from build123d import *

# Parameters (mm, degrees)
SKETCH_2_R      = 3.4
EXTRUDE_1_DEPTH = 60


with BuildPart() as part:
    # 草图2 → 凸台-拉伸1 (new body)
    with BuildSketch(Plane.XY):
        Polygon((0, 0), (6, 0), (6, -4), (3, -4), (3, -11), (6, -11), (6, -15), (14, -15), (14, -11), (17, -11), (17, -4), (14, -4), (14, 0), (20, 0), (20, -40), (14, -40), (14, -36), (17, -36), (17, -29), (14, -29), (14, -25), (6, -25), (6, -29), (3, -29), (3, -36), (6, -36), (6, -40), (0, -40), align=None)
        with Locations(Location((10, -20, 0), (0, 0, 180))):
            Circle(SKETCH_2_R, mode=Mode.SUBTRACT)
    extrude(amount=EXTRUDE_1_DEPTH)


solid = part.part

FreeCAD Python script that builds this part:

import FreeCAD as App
import Part
import Sketcher
from FreeCAD import Vector
Q = App.Units.Quantity


def add_polygon(sketch, points):
    """Adds a closed chain of lines whose ends are joined by coincident constraints."""
    first, n = sketch.GeometryCount, len(points)
    for a, b in zip(points, points[1:] + points[:1]):
        sketch.addGeometry(Part.LineSegment(App.Vector(*a, 0), App.Vector(*b, 0)), False)
    for i in range(n):
        sketch.addConstraint(Sketcher.Constraint("Coincident", first + i, 2, first + (i + 1) % n, 1))

doc = App.newDocument("Part")
body = doc.addObject("PartDesign::Body", "Body")

# Sketch on XY plane
sketch1 = body.newObject("Sketcher::SketchObject", "Sketch")
sketch1.AttachmentSupport = (doc.getObject("XY_Plane"), [""])
sketch1.MapMode = "FlatFace"
add_polygon(sketch1, [(6, 0), (0, 0), (0, -40), (6, -40), (6, -36), (3, -36), (3, -29), (6, -29), (6, -25), (14, -25), (14, -29), (17, -29), (17, -36), (14, -36), (14, -40), (20, -40), (20, 0), (14, 0), (14, -4), (17, -4), (17, -11), (14, -11), (14, -15), (6, -15), (6, -11), (3, -11), (3, -4), (6, -4)])  # lines 0-27
sketch1.addGeometry(Part.Circle(Vector(10, -20, 0), Vector(0, 0, 1), 3.4), False)  # 28
sketch1.addConstraint(Sketcher.Constraint("Horizontal", 0))
sketch1.addConstraint(Sketcher.Constraint("Vertical", 1))
sketch1.addConstraint(Sketcher.Constraint("Horizontal", 2))
sketch1.addConstraint(Sketcher.Constraint("Vertical", 3))
sketch1.addConstraint(Sketcher.Constraint("Horizontal", 4))
sketch1.addConstraint(Sketcher.Constraint("Vertical", 5))
sketch1.addConstraint(Sketcher.Constraint("Horizontal", 6))
sketch1.addConstraint(Sketcher.Constraint("Vertical", 7))
sketch1.addConstraint(Sketcher.Constraint("Horizontal", 8))
sketch1.addConstraint(Sketcher.Constraint("Vertical", 9))
sketch1.addConstraint(Sketcher.Constraint("Horizontal", 10))
sketch1.addConstraint(Sketcher.Constraint("Vertical", 11))
sketch1.addConstraint(Sketcher.Constraint("Horizontal", 12))
sketch1.addConstraint(Sketcher.Constraint("Vertical", 13))
sketch1.addConstraint(Sketcher.Constraint("Horizontal", 14))
sketch1.addConstraint(Sketcher.Constraint("Vertical", 15))
sketch1.addConstraint(Sketcher.Constraint("Horizontal", 16))
sketch1.addConstraint(Sketcher.Constraint("Vertical", 17))
sketch1.addConstraint(Sketcher.Constraint("Horizontal", 18))
sketch1.addConstraint(Sketcher.Constraint("Vertical", 19))
sketch1.addConstraint(Sketcher.Constraint("Horizontal", 20))
sketch1.addConstraint(Sketcher.Constraint("Vertical", 21))
sketch1.addConstraint(Sketcher.Constraint("Horizontal", 22))
sketch1.addConstraint(Sketcher.Constraint("Vertical", 23))
sketch1.addConstraint(Sketcher.Constraint("Horizontal", 24))
sketch1.addConstraint(Sketcher.Constraint("Vertical", 25))
sketch1.addConstraint(Sketcher.Constraint("Horizontal", 26))
sketch1.addConstraint(Sketcher.Constraint("Vertical", 27))
sketch1.addConstraint(Sketcher.Constraint("Coincident", 0, 2, -1, 1))
sketch1.addConstraint(Sketcher.Constraint("PointOnObject", 15, 2, -1))
sketch1.addConstraint(Sketcher.Constraint("Horizontal", 6, 2, 9, 2))
sketch1.addConstraint(Sketcher.Constraint("Horizontal", 4, 2, 11, 2))
sketch1.addConstraint(Sketcher.Constraint("Horizontal", 2, 2, 13, 2))
sketch1.addConstraint(Sketcher.Constraint("Horizontal", 20, 2, 23, 2))
sketch1.addConstraint(Sketcher.Constraint("Horizontal", 18, 2, 25, 2))
sketch1.addConstraint(Sketcher.Constraint("Vertical", 3, 2, 6, 2))
sketch1.addConstraint(Sketcher.Constraint("Vertical", 9, 2, 12, 2))
sketch1.addConstraint(Sketcher.Constraint("Vertical", 13, 2, 16, 2))
sketch1.addConstraint(Sketcher.Constraint("Vertical", 11, 2, 18, 2))
sketch1.addConstraint(Sketcher.Constraint("Vertical", 17, 2, 20, 2))
sketch1.addConstraint(Sketcher.Constraint("Vertical", 7, 2, 22, 2))
sketch1.addConstraint(Sketcher.Constraint("Vertical", 5, 2, 24, 2))
sketch1.addConstraint(Sketcher.Constraint("Vertical", 23, 2, 26, 2))
sketch1.addConstraint(Sketcher.Constraint("Equal", 6, 10))
sketch1.addConstraint(Sketcher.Constraint("Equal", 2, 14))
sketch1.addConstraint(Sketcher.Constraint("Equal", 3, 7))
sketch1.addConstraint(Sketcher.Constraint("Equal", 13, 17))
sketch1.addConstraint(Sketcher.Constraint("Equal", 11, 19))
sketch1.addConstraint(Sketcher.Constraint("Equal", 17, 21))
sketch1.addConstraint(Sketcher.Constraint("Diameter", 28, Q("6.8 mm")))
sketch1.addConstraint(Sketcher.Constraint("DistanceX", 0, 2, 0, 1, Q("6 mm")))
sketch1.addConstraint(Sketcher.Constraint("DistanceX", 4, 2, 4, 1, Q("3 mm")))
sketch1.addConstraint(Sketcher.Constraint("DistanceX", 8, 1, 8, 2, Q("8 mm")))
sketch1.addConstraint(Sketcher.Constraint("DistanceY", 1, 2, 1, 1, Q("40 mm")))
sketch1.addConstraint(Sketcher.Constraint("DistanceY", 3, 1, 3, 2, Q("4 mm")))
sketch1.addConstraint(Sketcher.Constraint("DistanceY", 5, 1, 5, 2, Q("7 mm")))
sketch1.addConstraint(Sketcher.Constraint("DistanceX", -1, 1, 28, 3, Q("10 mm")))
sketch1.addConstraint(Sketcher.Constraint("DistanceY", 28, 3, -1, 1, Q("20 mm")))
pad1 = body.newObject("PartDesign::Pad", "Pad")
pad1.Profile = sketch1
pad1.Length = 60

doc.recompute()
